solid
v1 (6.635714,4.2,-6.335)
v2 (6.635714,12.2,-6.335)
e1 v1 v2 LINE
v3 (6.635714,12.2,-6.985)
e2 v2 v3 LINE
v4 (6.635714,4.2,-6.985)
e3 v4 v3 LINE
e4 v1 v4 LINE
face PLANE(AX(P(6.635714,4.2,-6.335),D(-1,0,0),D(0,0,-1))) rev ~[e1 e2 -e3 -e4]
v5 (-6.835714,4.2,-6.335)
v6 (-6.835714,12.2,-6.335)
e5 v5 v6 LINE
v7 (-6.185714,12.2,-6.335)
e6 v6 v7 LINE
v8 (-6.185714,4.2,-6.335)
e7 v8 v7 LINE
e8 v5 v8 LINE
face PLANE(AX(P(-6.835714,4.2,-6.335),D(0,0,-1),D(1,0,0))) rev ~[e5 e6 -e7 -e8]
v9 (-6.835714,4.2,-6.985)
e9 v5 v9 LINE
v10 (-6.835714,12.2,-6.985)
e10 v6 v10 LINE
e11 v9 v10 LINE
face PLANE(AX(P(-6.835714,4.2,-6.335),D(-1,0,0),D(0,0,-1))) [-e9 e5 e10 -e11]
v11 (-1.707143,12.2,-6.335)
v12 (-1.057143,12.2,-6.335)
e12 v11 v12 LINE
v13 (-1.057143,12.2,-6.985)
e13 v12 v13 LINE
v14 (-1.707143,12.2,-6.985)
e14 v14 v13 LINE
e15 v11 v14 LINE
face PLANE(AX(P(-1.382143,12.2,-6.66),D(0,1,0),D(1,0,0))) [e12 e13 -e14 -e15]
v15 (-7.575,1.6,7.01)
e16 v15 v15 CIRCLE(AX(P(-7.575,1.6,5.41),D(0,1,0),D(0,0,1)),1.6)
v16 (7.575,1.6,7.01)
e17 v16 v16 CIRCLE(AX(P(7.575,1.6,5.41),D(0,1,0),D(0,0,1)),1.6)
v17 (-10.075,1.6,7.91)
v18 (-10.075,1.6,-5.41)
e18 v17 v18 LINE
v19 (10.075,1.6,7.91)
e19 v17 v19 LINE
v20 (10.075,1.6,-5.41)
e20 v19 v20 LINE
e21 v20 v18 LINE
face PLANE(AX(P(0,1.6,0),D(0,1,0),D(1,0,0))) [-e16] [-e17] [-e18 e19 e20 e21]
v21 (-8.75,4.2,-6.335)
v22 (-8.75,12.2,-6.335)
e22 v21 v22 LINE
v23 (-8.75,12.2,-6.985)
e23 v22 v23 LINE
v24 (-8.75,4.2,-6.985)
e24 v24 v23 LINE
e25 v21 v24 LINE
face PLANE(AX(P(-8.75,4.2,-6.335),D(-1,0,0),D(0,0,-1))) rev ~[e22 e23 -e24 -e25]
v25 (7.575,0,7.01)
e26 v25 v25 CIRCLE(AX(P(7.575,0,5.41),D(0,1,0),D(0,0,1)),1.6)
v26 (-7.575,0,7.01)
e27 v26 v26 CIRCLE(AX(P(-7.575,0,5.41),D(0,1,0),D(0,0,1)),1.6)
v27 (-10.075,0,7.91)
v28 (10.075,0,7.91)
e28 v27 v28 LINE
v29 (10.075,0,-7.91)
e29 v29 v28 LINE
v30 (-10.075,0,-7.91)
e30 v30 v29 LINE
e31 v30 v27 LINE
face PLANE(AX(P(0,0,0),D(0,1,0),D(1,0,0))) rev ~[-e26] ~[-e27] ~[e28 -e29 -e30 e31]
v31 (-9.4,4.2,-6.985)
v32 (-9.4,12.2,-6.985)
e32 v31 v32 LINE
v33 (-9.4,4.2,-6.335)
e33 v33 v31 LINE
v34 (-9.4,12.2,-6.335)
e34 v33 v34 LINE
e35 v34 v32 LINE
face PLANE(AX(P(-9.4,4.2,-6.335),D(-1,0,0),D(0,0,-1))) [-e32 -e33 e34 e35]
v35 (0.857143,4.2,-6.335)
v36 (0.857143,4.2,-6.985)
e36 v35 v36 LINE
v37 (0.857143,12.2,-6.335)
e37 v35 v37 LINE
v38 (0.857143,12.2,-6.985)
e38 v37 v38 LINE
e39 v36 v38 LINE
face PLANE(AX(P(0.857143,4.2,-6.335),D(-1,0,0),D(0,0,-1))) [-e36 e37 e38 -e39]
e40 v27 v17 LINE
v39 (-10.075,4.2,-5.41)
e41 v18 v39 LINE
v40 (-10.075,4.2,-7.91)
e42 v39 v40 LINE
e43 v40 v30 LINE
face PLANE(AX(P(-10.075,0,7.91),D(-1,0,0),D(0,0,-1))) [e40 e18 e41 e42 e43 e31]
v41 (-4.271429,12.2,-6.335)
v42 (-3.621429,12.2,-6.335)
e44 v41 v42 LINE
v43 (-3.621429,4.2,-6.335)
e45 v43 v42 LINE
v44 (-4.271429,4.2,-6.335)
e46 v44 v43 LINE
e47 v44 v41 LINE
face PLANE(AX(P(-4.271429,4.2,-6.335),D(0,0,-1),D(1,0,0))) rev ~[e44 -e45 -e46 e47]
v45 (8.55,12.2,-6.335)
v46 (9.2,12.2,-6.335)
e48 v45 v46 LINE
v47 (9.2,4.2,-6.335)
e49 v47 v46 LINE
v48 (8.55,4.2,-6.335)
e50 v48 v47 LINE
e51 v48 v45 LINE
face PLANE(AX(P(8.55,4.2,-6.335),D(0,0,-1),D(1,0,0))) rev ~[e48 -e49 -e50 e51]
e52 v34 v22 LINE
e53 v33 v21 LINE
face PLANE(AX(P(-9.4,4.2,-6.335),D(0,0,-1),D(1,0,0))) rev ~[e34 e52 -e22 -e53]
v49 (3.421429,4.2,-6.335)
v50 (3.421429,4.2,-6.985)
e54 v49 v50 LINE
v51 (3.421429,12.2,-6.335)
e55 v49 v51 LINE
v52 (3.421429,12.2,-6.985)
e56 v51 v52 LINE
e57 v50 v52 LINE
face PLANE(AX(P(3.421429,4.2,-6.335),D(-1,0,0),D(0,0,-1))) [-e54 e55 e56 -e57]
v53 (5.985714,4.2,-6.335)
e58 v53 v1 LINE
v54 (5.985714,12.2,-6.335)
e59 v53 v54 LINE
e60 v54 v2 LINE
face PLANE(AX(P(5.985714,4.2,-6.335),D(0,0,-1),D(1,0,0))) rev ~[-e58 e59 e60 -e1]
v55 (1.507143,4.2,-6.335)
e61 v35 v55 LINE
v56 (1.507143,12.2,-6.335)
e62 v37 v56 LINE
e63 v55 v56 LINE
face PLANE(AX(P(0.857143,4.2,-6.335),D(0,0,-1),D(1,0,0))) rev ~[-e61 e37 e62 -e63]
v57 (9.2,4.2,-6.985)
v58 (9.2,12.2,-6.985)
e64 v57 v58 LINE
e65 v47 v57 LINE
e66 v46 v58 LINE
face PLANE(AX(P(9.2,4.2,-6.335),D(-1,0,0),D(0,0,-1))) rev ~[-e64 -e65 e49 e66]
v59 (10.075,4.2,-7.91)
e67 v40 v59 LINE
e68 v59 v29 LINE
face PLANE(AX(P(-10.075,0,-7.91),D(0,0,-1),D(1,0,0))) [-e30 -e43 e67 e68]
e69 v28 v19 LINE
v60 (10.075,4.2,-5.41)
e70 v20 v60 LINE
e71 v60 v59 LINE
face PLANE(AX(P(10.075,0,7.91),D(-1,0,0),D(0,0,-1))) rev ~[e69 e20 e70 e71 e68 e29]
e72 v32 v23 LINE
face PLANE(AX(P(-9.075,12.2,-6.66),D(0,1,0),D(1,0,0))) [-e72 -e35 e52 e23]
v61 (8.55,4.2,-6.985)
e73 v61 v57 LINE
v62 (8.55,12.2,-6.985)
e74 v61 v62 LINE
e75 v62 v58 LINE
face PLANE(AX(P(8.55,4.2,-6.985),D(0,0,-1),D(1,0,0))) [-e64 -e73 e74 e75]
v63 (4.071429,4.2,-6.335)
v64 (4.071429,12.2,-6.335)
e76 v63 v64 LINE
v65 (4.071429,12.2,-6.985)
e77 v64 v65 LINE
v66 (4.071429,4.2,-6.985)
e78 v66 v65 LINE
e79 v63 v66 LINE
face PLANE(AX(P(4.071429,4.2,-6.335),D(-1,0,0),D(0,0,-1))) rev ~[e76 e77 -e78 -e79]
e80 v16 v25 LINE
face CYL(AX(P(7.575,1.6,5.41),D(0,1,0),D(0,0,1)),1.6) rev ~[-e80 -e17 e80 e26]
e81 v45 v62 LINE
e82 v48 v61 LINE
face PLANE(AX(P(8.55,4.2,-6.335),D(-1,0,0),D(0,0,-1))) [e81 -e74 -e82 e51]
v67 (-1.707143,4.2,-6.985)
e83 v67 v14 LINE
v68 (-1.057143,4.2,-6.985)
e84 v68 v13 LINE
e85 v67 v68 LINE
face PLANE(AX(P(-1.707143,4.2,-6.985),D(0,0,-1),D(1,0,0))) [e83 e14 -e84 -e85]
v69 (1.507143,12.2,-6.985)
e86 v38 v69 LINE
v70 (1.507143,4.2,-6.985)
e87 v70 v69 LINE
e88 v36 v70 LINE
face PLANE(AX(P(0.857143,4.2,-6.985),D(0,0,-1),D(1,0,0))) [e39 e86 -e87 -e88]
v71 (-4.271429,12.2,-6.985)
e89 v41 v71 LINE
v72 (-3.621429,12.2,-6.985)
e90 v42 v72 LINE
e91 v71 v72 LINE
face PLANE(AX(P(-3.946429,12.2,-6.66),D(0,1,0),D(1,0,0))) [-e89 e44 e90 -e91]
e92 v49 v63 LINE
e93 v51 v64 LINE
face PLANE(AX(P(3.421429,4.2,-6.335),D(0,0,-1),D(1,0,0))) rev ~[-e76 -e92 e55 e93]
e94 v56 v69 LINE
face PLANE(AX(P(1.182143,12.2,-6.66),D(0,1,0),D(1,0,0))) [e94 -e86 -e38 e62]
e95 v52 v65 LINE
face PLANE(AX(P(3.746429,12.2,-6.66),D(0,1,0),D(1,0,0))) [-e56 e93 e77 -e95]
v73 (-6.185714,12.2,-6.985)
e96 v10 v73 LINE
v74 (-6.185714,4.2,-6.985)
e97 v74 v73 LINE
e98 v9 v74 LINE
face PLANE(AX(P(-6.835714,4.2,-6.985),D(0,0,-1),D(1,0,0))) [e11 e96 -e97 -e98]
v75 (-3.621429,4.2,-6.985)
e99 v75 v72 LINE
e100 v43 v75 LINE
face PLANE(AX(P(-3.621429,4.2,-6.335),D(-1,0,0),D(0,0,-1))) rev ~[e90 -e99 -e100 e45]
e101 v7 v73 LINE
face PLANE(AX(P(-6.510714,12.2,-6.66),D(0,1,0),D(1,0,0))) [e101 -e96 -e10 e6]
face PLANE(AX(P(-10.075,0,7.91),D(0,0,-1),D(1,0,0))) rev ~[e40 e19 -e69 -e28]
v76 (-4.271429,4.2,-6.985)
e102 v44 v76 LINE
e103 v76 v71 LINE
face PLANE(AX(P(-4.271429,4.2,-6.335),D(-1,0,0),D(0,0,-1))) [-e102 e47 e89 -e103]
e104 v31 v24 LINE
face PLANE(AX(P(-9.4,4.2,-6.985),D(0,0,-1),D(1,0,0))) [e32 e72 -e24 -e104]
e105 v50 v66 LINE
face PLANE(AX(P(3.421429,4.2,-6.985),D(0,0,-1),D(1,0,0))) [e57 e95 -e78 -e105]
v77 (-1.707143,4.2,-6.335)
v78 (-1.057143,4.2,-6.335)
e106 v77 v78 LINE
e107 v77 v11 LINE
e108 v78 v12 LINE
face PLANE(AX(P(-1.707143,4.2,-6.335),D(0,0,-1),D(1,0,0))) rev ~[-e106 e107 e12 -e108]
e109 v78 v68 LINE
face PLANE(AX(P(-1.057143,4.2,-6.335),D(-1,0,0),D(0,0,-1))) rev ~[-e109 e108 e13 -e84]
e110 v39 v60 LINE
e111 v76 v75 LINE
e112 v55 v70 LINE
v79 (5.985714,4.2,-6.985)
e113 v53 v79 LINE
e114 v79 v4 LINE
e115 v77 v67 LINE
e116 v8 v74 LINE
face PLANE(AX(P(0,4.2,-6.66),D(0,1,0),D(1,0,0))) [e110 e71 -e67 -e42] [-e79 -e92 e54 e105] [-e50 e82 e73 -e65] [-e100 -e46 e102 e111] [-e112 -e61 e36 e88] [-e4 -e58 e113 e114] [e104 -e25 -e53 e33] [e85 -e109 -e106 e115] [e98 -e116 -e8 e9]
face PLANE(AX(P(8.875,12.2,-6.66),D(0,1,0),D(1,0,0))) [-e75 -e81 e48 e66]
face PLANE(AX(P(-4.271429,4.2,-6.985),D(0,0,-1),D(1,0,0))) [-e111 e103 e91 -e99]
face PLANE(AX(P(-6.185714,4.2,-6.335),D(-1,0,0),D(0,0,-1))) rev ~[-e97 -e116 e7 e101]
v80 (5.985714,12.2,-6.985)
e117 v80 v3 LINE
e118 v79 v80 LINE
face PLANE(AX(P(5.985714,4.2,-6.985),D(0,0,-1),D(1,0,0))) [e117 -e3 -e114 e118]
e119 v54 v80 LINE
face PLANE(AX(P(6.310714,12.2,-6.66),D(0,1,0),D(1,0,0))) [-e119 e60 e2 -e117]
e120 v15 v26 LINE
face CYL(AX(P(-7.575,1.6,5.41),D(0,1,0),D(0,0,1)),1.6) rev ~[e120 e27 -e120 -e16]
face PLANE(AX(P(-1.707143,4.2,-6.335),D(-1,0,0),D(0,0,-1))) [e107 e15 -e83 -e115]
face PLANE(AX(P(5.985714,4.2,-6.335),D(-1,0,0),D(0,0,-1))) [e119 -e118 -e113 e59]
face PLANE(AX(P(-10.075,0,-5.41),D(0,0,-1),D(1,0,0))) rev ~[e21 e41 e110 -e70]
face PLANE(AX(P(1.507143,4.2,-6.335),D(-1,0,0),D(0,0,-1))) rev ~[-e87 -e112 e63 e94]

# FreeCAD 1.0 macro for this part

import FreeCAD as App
import Part
import Sketcher
from FreeCAD import Vector
Q = App.Units.Quantity

doc = App.newDocument("Part")
body = doc.addObject("PartDesign::Body", "Body")

sketch1 = body.newObject("Sketcher::SketchObject", "Sketch")
sketch1.AttachmentSupport = (doc.getObject("XZ_Plane"), [""])
sketch1.MapMode = "FlatFace"
sketch1.addGeometry([
    Part.LineSegment(Vector(-10, -8, 0), Vector(-10, 8, 0)),
    Part.LineSegment(Vector(-10, 8, 0), Vector(10, 8, 0)),
    Part.LineSegment(Vector(10, 8, 0), Vector(10, -8, 0)),
    Part.LineSegment(Vector(10, -8, 0), Vector(-10, -8, 0)),
], False)
sketch1.addConstraint([
    Sketcher.Constraint("Coincident", 0, 2, 1, 1),
    Sketcher.Constraint("Coincident", 1, 2, 2, 1),
    Sketcher.Constraint("Coincident", 2, 2, 3, 1),
    Sketcher.Constraint("Coincident", 3, 2, 0, 1),
    Sketcher.Constraint("Vertical", 0),
    Sketcher.Constraint("Horizontal", 1),
    Sketcher.Constraint("Vertical", 2),
    Sketcher.Constraint("Horizontal", 3),
    Sketcher.Constraint("Symmetric", 0, 2, 2, 2, -1, 1),
    Sketcher.Constraint("DistanceX", 1, 1, 1, 2, Q("20.15 mm")),
    Sketcher.Constraint("DistanceY", 0, 1, 0, 2, Q("15.82 mm")),
])
pad1 = body.newObject("PartDesign::Pad", "Pad")
pad1.Profile = sketch1
pad1.Length = 1.6
pad1.Reversed = True

sketch2 = body.newObject("Sketcher::SketchObject", "Sketch001")
sketch2.AttachmentSupport = (doc.getObject("XZ_Plane"), [""])
sketch2.MapMode = "FlatFace"
sketch2.AttachmentOffset = App.Placement(Vector(0, 0, -1.6), App.Rotation())
sketch2.addGeometry([
    Part.Circle(Vector(-7.6, 5.4, 0), Vector(0, 0, 1), 1.6),
    Part.Circle(Vector(7.6, 5.4, 0), Vector(0, 0, 1), 1.6),
], False)
sketch2.addConstraint([
    Sketcher.Constraint("Equal", 0, 1),
    Sketcher.Constraint("Symmetric", 0, 3, 1, 3, -2),
    Sketcher.Constraint("Diameter", 0, Q("3.2 mm")),
    Sketcher.Constraint("DistanceY", -1, 1, 0, 3, Q("5.41 mm")),
    Sketcher.Constraint("DistanceX", 0, 3, 1, 3, Q("15.15 mm")),
])
pocket1 = body.newObject("PartDesign::Pocket", "Pocket")
pocket1.Profile = sketch2
pocket1.Type = "ThroughAll"
pocket1.Reversed = True

sketch3 = body.newObject("Sketcher::SketchObject", "Sketch002")
sketch3.AttachmentSupport = (doc.getObject("XZ_Plane"), [""])
sketch3.MapMode = "FlatFace"
sketch3.addGeometry([
    Part.LineSegment(Vector(-10.1, -7.9, 0), Vector(-10.1, -5.4, 0)),
    Part.LineSegment(Vector(-10.1, -5.4, 0), Vector(10.1, -5.4, 0)),
    Part.LineSegment(Vector(10.1, -5.4, 0), Vector(10.1, -7.9, 0)),
    Part.LineSegment(Vector(10.1, -7.9, 0), Vector(-10.1, -7.9, 0)),
], False)
sketch3.addConstraint([
    Sketcher.Constraint("Coincident", 0, 2, 1, 1),
    Sketcher.Constraint("Coincident", 1, 2, 2, 1),
    Sketcher.Constraint("Coincident", 2, 2, 3, 1),
    Sketcher.Constraint("Coincident", 3, 2, 0, 1),
    Sketcher.Constraint("Vertical", 0),
    Sketcher.Constraint("Horizontal", 1),
    Sketcher.Constraint("Vertical", 2),
    Sketcher.Constraint("Horizontal", 3),
    Sketcher.Constraint("DistanceY", 0, 1, 0, 2, Q("2.5 mm")),
    Sketcher.Constraint("DistanceX", 1, 1, 1, 2, Q("20.15 mm")),
    Sketcher.Constraint("DistanceY", 0, 2, -1, 1, Q("5.41 mm")),
    Sketcher.Constraint("DistanceX", 0, 2, -1, 1, Q("10.075 mm")),
])
pad2 = body.newObject("PartDesign::Pad", "Pad001")
pad2.Profile = sketch3
pad2.Length = 4.2
pad2.Reversed = True

sketch4 = body.newObject("Sketcher::SketchObject", "Sketch003")
sketch4.AttachmentSupport = (doc.getObject("XZ_Plane"), [""])
sketch4.MapMode = "FlatFace"
sketch4.AttachmentOffset = App.Placement(Vector(0, 0, -4.2), App.Rotation())
sketch4.addGeometry([
    Part.LineSegment(Vector(-9.4, -7, 0), Vector(-9.4, -6.3, 0)),
    Part.LineSegment(Vector(-9.4, -6.3, 0), Vector(-8.8, -6.3, 0)),
    Part.LineSegment(Vector(-8.8, -6.3, 0), Vector(-8.8, -7, 0)),
    Part.LineSegment(Vector(-8.8, -7, 0), Vector(-9.4, -7, 0)),
], False)
sketch4.addConstraint([
    Sketcher.Constraint("Coincident", 0, 2, 1, 1),
    Sketcher.Constraint("Coincident", 1, 2, 2, 1),
    Sketcher.Constraint("Coincident", 2, 2, 3, 1),
    Sketcher.Constraint("Coincident", 3, 2, 0, 1),
    Sketcher.Constraint("Vertical", 0),
    Sketcher.Constraint("Horizontal", 1),
    Sketcher.Constraint("Vertical", 2),
    Sketcher.Constraint("Horizontal", 3),
    Sketcher.Constraint("Equal", 3, 0),
    Sketcher.Constraint("DistanceX", 1, 1, 1, 2, Q("0.65 mm")),
    Sketcher.Constraint("DistanceX", 0, 2, -1, 1, Q("9.4 mm")),
    Sketcher.Constraint("DistanceY", 0, 2, -1, 1, Q("6.335 mm")),
])
pad3 = body.newObject("PartDesign::Pad", "Pad002")
pad3.Profile = sketch4
pad3.Length = 8
pad3.Reversed = True
doc.recompute()

linearpattern = body.newObject("PartDesign::LinearPattern", "LinearPattern")
linearpattern.Originals = [pad3]
linearpattern.Direction = (doc.getObject("X_Axis"), [""])
linearpattern.Mode = "offset"
linearpattern.Offset = 2.564286
linearpattern.Occurrences = 8
body.Tip = linearpattern

doc.recompute()
